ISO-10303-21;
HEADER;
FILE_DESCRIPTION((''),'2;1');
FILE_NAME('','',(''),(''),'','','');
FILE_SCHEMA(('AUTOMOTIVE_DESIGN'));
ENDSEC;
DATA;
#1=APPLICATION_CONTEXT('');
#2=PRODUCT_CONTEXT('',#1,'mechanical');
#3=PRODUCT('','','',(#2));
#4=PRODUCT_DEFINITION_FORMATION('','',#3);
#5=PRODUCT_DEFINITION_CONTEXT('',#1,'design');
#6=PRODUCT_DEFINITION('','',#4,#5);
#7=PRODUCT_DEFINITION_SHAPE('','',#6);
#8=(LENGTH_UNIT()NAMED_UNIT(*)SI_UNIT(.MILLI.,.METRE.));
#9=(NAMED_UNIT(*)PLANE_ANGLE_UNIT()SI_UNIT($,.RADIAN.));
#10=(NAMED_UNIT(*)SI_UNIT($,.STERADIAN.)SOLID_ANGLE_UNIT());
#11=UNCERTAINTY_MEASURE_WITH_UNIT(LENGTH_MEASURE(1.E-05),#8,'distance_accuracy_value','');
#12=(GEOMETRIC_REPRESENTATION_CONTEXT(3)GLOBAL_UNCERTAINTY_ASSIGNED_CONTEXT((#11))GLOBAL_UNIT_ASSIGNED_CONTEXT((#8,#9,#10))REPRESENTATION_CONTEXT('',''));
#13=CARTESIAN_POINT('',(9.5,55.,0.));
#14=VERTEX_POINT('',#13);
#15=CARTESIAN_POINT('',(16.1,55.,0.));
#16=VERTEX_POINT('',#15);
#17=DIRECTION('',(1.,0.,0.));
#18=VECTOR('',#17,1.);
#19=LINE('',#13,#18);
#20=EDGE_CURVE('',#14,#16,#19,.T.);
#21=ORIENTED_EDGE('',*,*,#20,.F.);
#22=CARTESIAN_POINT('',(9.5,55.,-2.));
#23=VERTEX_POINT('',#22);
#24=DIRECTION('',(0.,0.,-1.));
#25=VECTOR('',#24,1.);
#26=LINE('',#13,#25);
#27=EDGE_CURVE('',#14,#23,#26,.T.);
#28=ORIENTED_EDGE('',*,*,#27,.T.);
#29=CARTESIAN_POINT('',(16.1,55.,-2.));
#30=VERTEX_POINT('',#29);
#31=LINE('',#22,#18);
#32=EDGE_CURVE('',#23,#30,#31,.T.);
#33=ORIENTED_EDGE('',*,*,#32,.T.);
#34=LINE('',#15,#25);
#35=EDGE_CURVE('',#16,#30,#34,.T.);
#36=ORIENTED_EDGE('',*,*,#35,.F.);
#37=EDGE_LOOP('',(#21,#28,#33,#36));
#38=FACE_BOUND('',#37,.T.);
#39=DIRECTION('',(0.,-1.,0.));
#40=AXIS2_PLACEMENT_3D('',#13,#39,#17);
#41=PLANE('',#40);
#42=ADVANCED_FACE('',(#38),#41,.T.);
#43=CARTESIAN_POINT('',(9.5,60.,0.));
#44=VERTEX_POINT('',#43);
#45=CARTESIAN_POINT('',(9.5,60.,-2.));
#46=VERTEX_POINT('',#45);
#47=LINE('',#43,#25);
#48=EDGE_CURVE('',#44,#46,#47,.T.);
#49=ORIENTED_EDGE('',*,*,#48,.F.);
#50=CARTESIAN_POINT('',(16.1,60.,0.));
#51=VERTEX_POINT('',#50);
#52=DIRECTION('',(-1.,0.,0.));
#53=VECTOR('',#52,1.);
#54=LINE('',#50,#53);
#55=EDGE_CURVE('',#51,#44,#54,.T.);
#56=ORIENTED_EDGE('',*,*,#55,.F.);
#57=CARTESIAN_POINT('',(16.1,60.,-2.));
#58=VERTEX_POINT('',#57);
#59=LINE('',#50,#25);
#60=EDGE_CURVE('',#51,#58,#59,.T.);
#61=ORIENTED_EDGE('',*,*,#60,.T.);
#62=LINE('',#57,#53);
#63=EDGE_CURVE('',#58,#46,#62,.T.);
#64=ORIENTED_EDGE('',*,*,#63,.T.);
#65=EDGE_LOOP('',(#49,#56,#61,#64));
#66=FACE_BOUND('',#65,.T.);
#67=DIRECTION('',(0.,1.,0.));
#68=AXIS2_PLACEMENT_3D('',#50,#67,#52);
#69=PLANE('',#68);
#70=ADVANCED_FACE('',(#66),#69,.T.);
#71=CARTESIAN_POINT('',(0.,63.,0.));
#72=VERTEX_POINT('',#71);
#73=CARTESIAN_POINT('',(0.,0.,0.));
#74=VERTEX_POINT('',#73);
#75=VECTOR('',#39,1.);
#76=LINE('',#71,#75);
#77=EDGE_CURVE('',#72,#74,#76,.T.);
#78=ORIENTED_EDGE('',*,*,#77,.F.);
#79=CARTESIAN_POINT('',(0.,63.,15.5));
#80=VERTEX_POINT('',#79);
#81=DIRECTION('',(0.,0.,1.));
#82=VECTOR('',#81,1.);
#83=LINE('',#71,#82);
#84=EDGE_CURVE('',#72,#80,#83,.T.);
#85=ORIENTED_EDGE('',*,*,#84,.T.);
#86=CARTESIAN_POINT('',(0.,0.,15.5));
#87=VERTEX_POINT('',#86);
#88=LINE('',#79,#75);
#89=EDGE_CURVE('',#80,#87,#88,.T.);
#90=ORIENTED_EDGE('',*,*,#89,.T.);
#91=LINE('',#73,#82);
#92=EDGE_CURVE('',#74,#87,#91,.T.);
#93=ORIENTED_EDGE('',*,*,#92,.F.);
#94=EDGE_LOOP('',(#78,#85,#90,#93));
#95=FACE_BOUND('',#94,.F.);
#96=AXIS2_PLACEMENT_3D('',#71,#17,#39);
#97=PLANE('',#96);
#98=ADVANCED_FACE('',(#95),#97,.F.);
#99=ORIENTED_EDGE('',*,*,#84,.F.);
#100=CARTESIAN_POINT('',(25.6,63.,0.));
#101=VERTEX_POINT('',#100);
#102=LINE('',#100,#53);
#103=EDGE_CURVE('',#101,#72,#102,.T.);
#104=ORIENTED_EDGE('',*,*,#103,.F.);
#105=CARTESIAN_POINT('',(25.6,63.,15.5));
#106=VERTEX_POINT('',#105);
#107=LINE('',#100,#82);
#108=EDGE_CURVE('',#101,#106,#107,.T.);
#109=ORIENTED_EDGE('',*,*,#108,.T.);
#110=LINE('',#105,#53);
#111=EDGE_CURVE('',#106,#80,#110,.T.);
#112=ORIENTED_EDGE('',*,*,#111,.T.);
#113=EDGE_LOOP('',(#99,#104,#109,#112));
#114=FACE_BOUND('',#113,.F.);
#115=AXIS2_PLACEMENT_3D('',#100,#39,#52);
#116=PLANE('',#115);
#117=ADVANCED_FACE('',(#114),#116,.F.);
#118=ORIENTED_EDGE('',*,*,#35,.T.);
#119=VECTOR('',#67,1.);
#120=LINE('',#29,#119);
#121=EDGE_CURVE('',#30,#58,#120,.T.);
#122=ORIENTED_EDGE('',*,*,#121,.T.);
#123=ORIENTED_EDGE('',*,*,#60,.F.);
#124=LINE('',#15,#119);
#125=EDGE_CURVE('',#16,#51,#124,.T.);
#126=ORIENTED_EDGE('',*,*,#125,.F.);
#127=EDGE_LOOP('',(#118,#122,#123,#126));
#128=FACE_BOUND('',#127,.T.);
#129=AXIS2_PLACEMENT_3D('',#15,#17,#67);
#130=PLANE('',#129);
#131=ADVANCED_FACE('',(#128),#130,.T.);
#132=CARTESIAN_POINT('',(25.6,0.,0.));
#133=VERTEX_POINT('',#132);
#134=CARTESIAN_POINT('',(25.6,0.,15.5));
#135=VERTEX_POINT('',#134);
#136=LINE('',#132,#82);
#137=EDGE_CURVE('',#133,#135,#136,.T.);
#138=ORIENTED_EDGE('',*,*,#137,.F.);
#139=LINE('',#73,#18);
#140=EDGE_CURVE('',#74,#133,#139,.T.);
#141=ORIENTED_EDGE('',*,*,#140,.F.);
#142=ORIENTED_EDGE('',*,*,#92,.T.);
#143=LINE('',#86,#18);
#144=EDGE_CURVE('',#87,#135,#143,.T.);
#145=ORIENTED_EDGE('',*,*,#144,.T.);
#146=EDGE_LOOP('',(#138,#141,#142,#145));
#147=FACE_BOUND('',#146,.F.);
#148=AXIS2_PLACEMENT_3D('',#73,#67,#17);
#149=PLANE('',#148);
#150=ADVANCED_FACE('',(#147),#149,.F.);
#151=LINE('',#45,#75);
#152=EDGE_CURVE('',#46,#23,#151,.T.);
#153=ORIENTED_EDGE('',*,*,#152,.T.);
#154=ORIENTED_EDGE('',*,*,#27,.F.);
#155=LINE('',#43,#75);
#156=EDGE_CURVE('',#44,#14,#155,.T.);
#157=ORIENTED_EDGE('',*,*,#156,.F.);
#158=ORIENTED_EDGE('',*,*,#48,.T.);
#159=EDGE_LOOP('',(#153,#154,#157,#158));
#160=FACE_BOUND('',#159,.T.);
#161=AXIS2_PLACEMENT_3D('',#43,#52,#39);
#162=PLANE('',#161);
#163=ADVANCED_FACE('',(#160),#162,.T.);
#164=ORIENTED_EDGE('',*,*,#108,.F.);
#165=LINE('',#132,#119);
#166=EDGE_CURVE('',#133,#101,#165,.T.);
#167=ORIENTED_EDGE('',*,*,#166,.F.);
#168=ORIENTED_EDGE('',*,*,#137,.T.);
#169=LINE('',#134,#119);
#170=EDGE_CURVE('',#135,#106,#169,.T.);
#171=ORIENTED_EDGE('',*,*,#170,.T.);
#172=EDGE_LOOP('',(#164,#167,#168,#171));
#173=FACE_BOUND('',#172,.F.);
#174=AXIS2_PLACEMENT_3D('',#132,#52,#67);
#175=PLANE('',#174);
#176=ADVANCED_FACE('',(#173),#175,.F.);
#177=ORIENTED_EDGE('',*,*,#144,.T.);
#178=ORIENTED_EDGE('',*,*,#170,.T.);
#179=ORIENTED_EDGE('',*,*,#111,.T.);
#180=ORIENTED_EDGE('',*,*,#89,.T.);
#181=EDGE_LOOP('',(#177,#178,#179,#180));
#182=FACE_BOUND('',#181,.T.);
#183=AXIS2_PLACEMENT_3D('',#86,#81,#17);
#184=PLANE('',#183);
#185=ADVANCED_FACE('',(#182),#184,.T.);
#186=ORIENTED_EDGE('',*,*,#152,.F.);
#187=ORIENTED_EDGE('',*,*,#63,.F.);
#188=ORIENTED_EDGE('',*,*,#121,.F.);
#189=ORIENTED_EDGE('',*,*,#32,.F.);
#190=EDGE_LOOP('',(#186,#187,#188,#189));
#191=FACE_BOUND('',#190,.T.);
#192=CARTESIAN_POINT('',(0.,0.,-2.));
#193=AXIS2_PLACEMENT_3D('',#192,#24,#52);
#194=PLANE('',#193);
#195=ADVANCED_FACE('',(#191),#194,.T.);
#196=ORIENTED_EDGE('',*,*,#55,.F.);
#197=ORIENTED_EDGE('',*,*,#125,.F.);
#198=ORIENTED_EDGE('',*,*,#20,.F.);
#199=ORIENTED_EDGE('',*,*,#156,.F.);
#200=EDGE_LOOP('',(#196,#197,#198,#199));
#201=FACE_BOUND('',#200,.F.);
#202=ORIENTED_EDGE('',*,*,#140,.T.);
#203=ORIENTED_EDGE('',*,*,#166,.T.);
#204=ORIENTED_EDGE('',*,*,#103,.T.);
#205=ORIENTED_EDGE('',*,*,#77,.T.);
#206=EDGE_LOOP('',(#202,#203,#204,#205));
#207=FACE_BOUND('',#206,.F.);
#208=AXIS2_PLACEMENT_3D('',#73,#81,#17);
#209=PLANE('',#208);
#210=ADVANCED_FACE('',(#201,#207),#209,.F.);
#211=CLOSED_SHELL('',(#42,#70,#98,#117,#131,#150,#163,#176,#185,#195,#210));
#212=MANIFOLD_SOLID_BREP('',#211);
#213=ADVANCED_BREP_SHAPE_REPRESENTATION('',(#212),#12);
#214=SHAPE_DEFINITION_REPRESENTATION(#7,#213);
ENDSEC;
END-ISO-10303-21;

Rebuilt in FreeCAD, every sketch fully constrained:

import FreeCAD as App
import Part
import Sketcher

V = App.Vector

doc = App.newDocument("Part")
body = doc.addObject("PartDesign::Body", "Body")

sketch1 = doc.addObject("Sketcher::SketchObject", "Sketch")
body.addObject(sketch1)
sketch1.AttachmentSupport = (doc.XY_Plane, [""])
sketch1.MapMode = "FlatFace"
sketch1.addGeometry([
    Part.LineSegment(V(0, 63, 0), V(0, 0, 0)),
    Part.LineSegment(V(0, 0, 0), V(26, 0, 0)),
    Part.LineSegment(V(26, 0, 0), V(26, 63, 0)),
    Part.LineSegment(V(26, 63, 0), V(0, 63, 0)),
], False)
sketch1.addConstraint([
    Sketcher.Constraint("Coincident", 0, 2, 1, 1),
    Sketcher.Constraint("Coincident", 1, 2, 2, 1),
    Sketcher.Constraint("Coincident", 2, 2, 3, 1),
    Sketcher.Constraint("Coincident", 3, 2, 0, 1),
    Sketcher.Constraint("Vertical", 0),
    Sketcher.Constraint("Horizontal", 1),
    Sketcher.Constraint("Vertical", 2),
    Sketcher.Constraint("Horizontal", 3),
    Sketcher.Constraint("Coincident", 0, 2, -1, 1),
    Sketcher.Constraint("DistanceY", 0, 2, 0, 1, 63.0),
    Sketcher.Constraint("DistanceX", 1, 1, 1, 2, 25.6),
])
pad1 = doc.addObject("PartDesign::Pad", "Pad")
body.addObject(pad1)
pad1.Profile = sketch1
pad1.Length = 15.5

sketch2 = doc.addObject("Sketcher::SketchObject", "Sketch001")
body.addObject(sketch2)
sketch2.AttachmentSupport = (doc.XY_Plane, [""])
sketch2.MapMode = "FlatFace"
sketch2.addGeometry([
    Part.LineSegment(V(10, 60, 0), V(16, 60, 0)),
    Part.LineSegment(V(16, 60, 0), V(16, 55, 0)),
    Part.LineSegment(V(16, 55, 0), V(10, 55, 0)),
    Part.LineSegment(V(10, 55, 0), V(10, 60, 0)),
], False)
sketch2.addConstraint([
    Sketcher.Constraint("Coincident", 0, 2, 1, 1),
    Sketcher.Constraint("Coincident", 1, 2, 2, 1),
    Sketcher.Constraint("Coincident", 2, 2, 3, 1),
    Sketcher.Constraint("Coincident", 3, 2, 0, 1),
    Sketcher.Constraint("Horizontal", 0),
    Sketcher.Constraint("Vertical", 1),
    Sketcher.Constraint("Horizontal", 2),
    Sketcher.Constraint("Vertical", 3),
    Sketcher.Constraint("DistanceY", 1, 2, 1, 1, 5.0),
    Sketcher.Constraint("DistanceX", -1, 1, 2, 2, 9.5),
    Sketcher.Constraint("DistanceX", 0, 1, 0, 2, 6.6),
    Sketcher.Constraint("DistanceY", -1, 1, 0, 2, 60.0),
])
pad2 = doc.addObject("PartDesign::Pad", "Pad001")
body.addObject(pad2)
pad2.Profile = sketch2
pad2.Length = 2
pad2.Reversed = True

doc.recompute()
